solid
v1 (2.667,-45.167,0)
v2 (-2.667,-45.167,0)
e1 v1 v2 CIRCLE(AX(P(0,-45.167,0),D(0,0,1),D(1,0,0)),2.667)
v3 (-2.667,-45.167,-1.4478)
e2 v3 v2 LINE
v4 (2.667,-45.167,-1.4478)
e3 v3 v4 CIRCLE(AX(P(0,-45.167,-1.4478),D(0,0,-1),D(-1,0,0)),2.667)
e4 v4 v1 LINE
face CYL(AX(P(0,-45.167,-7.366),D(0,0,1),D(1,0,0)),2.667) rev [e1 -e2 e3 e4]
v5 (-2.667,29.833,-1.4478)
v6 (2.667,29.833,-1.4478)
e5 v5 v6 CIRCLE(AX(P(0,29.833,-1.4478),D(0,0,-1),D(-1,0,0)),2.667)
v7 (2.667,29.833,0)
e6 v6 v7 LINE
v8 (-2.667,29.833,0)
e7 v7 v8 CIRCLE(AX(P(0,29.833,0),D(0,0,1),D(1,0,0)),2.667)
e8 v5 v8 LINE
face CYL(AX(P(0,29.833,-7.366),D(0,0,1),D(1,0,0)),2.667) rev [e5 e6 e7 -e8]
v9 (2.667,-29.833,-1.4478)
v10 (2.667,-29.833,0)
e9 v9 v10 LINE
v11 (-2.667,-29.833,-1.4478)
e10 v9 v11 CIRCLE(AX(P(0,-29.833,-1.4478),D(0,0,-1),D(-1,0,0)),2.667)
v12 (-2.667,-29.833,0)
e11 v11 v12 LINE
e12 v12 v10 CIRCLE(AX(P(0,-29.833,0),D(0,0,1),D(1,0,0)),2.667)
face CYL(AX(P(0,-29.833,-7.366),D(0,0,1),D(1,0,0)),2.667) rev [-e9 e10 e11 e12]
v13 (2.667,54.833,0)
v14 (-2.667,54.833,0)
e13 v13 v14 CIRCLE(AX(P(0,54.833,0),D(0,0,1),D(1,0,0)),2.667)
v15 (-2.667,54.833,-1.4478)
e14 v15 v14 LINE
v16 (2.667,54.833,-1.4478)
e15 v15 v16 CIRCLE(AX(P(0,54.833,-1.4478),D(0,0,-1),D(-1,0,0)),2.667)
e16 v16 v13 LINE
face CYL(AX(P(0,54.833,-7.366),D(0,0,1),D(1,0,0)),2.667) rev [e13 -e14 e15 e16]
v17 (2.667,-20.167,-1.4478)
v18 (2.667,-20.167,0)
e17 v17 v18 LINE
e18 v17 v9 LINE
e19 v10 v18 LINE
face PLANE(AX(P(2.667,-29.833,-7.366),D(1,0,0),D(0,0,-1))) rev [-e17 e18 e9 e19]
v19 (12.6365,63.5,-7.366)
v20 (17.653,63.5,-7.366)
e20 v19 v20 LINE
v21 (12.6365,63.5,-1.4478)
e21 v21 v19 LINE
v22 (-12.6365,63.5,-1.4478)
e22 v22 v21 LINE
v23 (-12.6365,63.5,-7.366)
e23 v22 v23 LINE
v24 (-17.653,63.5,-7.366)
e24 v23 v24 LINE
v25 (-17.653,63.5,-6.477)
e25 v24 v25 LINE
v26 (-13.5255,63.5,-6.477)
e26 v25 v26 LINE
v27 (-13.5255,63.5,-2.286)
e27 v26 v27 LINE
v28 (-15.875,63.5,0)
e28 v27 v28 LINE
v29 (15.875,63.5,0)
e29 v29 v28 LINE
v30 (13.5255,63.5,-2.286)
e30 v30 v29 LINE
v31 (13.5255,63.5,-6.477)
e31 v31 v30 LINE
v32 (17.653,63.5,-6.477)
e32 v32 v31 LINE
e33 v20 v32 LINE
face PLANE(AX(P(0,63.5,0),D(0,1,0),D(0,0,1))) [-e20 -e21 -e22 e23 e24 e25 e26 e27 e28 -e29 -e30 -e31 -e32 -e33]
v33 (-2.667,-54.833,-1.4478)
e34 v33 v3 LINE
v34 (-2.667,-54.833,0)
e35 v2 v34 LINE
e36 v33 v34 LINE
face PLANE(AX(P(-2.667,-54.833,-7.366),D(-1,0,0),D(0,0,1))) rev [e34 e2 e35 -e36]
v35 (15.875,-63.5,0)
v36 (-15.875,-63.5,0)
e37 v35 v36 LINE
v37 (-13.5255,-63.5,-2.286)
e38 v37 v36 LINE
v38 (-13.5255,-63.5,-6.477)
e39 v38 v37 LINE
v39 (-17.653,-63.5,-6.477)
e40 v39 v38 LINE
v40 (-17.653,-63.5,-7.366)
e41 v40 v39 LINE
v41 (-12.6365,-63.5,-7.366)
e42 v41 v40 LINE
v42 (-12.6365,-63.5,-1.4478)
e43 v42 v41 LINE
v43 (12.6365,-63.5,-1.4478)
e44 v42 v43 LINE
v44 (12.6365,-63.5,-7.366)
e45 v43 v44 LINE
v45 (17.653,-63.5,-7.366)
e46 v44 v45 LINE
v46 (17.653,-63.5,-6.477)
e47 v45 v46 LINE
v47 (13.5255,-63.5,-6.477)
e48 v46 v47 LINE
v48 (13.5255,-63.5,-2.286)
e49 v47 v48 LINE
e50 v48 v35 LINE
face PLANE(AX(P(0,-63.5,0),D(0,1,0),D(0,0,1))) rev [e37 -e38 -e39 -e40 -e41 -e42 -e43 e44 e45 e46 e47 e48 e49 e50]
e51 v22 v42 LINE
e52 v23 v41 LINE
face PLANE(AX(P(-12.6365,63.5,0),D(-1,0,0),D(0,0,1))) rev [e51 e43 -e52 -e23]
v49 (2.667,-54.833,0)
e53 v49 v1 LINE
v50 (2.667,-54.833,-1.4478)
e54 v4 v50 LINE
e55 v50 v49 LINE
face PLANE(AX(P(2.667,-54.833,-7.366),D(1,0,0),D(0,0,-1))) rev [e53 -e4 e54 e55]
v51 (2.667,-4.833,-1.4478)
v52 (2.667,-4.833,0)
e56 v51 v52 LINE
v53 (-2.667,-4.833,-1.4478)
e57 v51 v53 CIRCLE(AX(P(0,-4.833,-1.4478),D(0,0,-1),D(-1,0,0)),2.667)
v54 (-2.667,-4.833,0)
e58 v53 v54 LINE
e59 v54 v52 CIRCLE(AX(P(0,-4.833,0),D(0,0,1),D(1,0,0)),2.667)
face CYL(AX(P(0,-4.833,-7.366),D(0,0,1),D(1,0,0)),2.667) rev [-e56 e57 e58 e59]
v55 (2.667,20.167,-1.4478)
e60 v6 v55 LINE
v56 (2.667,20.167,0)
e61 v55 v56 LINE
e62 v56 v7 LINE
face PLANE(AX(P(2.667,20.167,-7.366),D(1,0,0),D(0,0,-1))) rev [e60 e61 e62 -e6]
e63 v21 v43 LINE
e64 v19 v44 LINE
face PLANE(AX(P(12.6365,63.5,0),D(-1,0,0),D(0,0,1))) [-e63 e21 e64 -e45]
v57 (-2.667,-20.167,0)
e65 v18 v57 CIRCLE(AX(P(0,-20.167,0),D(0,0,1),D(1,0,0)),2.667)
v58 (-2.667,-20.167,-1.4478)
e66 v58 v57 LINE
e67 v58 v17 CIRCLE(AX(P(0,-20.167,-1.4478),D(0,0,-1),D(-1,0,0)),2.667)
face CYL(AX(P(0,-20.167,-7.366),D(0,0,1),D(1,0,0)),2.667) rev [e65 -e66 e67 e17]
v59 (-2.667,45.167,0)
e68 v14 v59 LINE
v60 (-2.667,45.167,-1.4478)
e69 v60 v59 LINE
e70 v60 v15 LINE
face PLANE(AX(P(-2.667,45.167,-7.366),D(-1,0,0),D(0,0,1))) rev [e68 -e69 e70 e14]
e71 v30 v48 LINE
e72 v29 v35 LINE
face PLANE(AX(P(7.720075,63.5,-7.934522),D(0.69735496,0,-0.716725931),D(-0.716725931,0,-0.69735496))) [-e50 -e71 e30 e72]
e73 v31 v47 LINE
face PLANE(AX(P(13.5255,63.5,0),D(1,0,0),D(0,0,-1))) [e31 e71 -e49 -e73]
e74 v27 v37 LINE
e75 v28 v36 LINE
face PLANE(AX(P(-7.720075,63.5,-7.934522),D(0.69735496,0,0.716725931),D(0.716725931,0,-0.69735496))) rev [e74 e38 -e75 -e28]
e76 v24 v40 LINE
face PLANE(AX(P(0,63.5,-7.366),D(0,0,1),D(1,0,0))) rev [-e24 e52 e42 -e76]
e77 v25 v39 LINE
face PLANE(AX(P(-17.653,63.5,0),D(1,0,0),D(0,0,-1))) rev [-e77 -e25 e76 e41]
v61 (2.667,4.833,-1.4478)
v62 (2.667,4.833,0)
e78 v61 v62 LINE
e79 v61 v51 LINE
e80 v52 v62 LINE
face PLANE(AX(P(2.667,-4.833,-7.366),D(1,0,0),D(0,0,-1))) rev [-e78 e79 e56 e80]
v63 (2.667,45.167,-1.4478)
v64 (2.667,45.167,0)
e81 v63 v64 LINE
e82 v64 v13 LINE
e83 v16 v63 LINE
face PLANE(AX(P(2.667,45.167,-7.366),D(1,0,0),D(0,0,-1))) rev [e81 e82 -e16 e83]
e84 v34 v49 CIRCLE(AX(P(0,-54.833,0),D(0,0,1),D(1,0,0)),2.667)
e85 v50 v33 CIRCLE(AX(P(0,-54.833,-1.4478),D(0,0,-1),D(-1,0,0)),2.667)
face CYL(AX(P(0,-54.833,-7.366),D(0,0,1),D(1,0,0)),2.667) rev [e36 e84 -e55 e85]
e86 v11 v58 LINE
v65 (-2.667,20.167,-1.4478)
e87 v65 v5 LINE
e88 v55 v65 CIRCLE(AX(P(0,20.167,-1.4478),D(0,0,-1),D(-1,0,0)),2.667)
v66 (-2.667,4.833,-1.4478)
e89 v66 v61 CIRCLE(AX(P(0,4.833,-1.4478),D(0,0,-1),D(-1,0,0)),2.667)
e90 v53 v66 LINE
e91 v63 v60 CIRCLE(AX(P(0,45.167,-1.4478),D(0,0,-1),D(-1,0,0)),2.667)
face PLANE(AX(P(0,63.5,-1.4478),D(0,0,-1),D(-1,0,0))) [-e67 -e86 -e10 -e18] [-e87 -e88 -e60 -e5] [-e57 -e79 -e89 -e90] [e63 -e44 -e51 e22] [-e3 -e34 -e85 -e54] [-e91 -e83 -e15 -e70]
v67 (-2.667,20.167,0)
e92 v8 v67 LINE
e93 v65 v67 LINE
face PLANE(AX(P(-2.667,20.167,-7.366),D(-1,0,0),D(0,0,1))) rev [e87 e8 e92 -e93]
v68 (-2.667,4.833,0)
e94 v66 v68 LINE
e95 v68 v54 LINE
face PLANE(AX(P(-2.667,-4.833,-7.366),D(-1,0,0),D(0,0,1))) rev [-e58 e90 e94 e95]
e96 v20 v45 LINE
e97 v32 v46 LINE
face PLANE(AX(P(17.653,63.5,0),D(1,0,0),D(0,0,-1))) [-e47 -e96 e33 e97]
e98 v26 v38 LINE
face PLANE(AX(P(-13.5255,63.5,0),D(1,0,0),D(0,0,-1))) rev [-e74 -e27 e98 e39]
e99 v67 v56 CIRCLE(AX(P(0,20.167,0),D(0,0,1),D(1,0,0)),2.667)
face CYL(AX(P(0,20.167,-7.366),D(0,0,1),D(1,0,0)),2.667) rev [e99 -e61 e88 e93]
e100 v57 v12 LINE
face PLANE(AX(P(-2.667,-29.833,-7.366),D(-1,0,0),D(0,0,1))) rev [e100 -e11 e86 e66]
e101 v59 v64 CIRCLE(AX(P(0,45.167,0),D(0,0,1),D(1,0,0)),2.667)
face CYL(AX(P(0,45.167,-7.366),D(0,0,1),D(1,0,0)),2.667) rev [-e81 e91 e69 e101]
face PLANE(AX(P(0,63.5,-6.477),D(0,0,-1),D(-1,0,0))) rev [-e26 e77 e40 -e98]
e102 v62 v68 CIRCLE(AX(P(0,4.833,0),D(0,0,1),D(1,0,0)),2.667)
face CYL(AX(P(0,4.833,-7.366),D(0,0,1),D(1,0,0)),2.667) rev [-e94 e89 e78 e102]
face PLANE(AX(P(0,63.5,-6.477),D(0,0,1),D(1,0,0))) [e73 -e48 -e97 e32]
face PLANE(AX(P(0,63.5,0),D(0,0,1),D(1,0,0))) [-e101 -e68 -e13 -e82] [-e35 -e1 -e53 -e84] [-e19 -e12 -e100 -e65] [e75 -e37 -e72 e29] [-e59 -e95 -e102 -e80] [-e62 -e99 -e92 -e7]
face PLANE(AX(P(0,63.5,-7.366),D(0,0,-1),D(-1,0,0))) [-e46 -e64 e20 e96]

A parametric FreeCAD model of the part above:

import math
import FreeCAD as App
import Part
import Sketcher
Q = App.Units.Quantity


def add_polygon(sketch, points):
    """Adds a closed chain of lines whose ends are joined by coincident constraints."""
    first, n = sketch.GeometryCount, len(points)
    for a, b in zip(points, points[1:] + points[:1]):
        sketch.addGeometry(Part.LineSegment(App.Vector(*a, 0), App.Vector(*b, 0)), False)
    for i in range(n):
        sketch.addConstraint(Sketcher.Constraint("Coincident", first + i, 2, first + (i + 1) % n, 1))

doc = App.newDocument("Part")
body = doc.addObject("PartDesign::Body", "Body")

# Sketch on XZ plane
sketch1 = doc.addObject("Sketcher::SketchObject", "Sketch")
body.addObject(sketch1)
sketch1.AttachmentSupport = (doc.XZ_Plane, [""])
sketch1.MapMode = "FlatFace"
add_polygon(sketch1, [(-15.9, 0), (15.9, 0), (13.5, -2.3), (13.5, -6.5), (17.7, -6.5), (17.7, -7.4), (12.6, -7.4), (12.6, -1.4), (-12.6, -1.4), (-12.6, -7.4), (-17.7, -7.4), (-17.7, -6.5), (-13.5, -6.5), (-13.5, -2.3)])  # lines 0-13
sketch1.addConstraint([
    Sketcher.Constraint("Horizontal", 0),
    Sketcher.Constraint("Vertical", 2),
    Sketcher.Constraint("Horizontal", 3),
    Sketcher.Constraint("Vertical", 4),
    Sketcher.Constraint("Horizontal", 5),
    Sketcher.Constraint("Vertical", 6),
    Sketcher.Constraint("Horizontal", 7),
    Sketcher.Constraint("Vertical", 8),
    Sketcher.Constraint("Horizontal", 9),
    Sketcher.Constraint("Vertical", 10),
    Sketcher.Constraint("Horizontal", 11),
    Sketcher.Constraint("Vertical", 12),
    Sketcher.Constraint("Symmetric", 0, 2, 13, 2, -1, 1),
    Sketcher.Constraint("Symmetric", 5, 2, 8, 2, -2),
    Sketcher.Constraint("Symmetric", 3, 2, 10, 2, -2),
    Sketcher.Constraint("Symmetric", 1, 2, 12, 2, -2),
    Sketcher.Constraint("DistanceX", 0, 1, 0, 2, Q("1.25 in")),
    Sketcher.Constraint("DistanceY", 4, 2, 1, 2, Q("0.2 in")),
    Sketcher.Constraint("DistanceX", 7, 2, 7, 1, Q("0.995 in")),
    Sketcher.Constraint("DistanceY", 2, 2, 2, 1, Q("0.165 in")),
    Sketcher.Constraint("DistanceY", 6, 1, 6, 2, Q("0.233 in")),
    Sketcher.Constraint("DistanceY", 1, 2, -1, 1, Q("0.09 in")),
    Sketcher.Constraint("DistanceX", 0, 2, 3, 2, Q("0.07 in")),
    Sketcher.Constraint("DistanceX", 7, 2, 1, 2, Q("1.03 in")),
])
pad1 = doc.addObject("PartDesign::Pad", "Pad")
body.addObject(pad1)
pad1.Profile = sketch1
pad1.Length = Q("5 in")
pad1.Midplane = True

# Sketch on XY plane
sketch2 = doc.addObject("Sketcher::SketchObject", "Sketch001")
body.addObject(sketch2)
sketch2.AttachmentSupport = (doc.XY_Plane, [""])
sketch2.MapMode = "FlatFace"
sketch2.addGeometry([
    Part.LineSegment(App.Vector(-2.7, 4.8, 0), App.Vector(-2.7, -4.8, 0)),
    Part.ArcOfCircle(Part.Circle(App.Vector(0, -4.8, 0), App.Vector(0, 0, 1), 2.7), math.radians(180), math.radians(360)),
    Part.LineSegment(App.Vector(2.7, -4.8, 0), App.Vector(2.7, 4.8, 0)),
    Part.ArcOfCircle(Part.Circle(App.Vector(0, 4.8, 0), App.Vector(0, 0, 1), 2.7), math.radians(0), math.radians(180)),
], False)
sketch2.addConstraint([
    Sketcher.Constraint("Tangent", 0, 2, 1, 1),
    Sketcher.Constraint("Tangent", 1, 2, 2, 1),
    Sketcher.Constraint("Tangent", 2, 2, 3, 1),
    Sketcher.Constraint("Tangent", 3, 2, 0, 1),
    Sketcher.Constraint("Vertical", 0),
    Sketcher.Constraint("Vertical", 2),
    Sketcher.Constraint("Symmetric", 1, 3, 3, 3, -1, 1),
    Sketcher.Constraint("Radius", 1, Q("0.105 in")),
    Sketcher.Constraint("DistanceY", 0, 2, 0, 1, Q("9.666 mm")),
])
pocket1 = doc.addObject("PartDesign::Pocket", "Pocket")
body.addObject(pocket1)
pocket1.Profile = sketch2
pocket1.Type = "ThroughAll"
doc.recompute()

linearpattern = doc.addObject("PartDesign::LinearPattern", "LinearPattern")
body.addObject(linearpattern)
linearpattern.Originals = [pocket1]
linearpattern.Direction = (doc.Y_Axis, [""])
linearpattern.Mode = "offset"
linearpattern.Offset = 25
linearpattern.Occurrences = 3
linearpattern.Reversed = True
body.Tip = linearpattern
doc.recompute()

linearpattern2 = doc.addObject("PartDesign::LinearPattern", "LinearPattern001")
body.addObject(linearpattern2)
linearpattern2.Originals = [pocket1]
linearpattern2.Direction = (doc.Y_Axis, [""])
linearpattern2.Mode = "offset"
linearpattern2.Offset = 25
linearpattern2.Occurrences = 3
body.Tip = linearpattern2

doc.recompute()
